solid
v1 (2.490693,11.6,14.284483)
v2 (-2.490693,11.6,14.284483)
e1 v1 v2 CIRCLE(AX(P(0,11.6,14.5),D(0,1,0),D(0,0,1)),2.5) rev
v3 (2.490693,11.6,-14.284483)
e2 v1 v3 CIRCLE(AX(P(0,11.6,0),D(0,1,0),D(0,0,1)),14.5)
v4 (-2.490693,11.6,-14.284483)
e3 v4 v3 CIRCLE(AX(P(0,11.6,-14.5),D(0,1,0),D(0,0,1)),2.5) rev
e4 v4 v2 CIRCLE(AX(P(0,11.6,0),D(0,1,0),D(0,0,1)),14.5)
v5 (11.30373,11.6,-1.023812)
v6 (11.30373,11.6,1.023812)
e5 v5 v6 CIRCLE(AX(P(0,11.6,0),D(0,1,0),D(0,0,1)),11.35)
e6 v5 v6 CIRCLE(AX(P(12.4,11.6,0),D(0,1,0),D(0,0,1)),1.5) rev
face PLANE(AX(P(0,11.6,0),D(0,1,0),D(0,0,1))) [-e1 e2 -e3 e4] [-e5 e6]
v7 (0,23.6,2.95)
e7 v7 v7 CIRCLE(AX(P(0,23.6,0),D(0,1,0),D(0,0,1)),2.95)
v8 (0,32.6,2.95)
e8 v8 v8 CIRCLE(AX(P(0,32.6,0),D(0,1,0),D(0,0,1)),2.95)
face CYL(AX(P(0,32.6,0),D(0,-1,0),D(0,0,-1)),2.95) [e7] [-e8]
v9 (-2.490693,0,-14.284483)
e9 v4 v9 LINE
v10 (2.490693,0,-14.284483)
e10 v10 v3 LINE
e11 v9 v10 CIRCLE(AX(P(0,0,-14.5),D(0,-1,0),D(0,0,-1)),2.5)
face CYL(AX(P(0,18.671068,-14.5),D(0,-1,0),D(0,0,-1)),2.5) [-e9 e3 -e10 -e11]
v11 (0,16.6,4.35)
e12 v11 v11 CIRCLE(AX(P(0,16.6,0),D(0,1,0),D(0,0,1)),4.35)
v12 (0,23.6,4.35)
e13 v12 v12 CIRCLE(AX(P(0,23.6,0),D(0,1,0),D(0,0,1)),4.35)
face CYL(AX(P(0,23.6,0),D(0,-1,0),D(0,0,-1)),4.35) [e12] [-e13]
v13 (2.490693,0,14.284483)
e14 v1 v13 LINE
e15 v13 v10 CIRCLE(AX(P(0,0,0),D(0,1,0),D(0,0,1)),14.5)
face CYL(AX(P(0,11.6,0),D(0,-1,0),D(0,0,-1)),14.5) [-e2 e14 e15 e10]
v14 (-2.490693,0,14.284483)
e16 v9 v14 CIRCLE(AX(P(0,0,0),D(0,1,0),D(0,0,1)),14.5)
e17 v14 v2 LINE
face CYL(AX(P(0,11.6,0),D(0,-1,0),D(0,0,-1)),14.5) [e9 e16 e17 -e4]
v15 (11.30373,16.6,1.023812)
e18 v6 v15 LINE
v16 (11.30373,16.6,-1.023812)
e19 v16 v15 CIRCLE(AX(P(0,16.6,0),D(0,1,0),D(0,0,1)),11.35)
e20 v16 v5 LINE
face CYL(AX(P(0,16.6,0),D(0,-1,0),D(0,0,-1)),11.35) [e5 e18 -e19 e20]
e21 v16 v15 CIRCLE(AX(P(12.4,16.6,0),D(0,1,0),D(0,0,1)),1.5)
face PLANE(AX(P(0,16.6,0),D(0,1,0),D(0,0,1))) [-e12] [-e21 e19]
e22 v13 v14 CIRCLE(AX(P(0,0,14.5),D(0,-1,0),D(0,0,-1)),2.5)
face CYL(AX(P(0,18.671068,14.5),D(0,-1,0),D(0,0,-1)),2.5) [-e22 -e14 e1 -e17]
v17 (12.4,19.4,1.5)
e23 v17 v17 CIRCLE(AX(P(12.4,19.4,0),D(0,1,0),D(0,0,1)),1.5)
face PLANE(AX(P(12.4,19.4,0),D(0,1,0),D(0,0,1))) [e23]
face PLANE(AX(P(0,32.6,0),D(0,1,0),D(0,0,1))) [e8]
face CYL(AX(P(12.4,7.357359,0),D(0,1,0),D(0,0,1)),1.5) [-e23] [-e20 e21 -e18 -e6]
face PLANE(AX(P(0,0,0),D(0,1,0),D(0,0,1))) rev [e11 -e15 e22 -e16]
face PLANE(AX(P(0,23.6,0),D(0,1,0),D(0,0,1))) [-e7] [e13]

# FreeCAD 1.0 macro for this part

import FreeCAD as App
import Part
import Sketcher

doc = App.newDocument("Part")
params = doc.addObject("Spreadsheet::Sheet", "Params")
for row, (alias, value) in enumerate([
    ("sketch1_diameter", "29 mm"),
    ("pad1_length", "11.6 mm"),
    ("sketch2_diameter", "22.7 mm"),
    ("pad2_length", "5 mm"),
    ("sketch3_diameter", "8.7 mm"),
    ("pad3_length", "7 mm"),
    ("sketch4_diameter", "5.9 mm"),
    ("pad4_length", "9 mm"),
    ("sketch5_diameter", "5 mm"),
    ("pad5_length", "11.6 mm"),
    ("sketch6_diameter", "3 mm"),
    ("pad6_length", "2.8 mm"),
    ("pad6_length2", "16.6 mm"),
], start=1):
    params.set(f"A{row}", alias)
    params.set(f"B{row}", "=" + value)
    params.setAlias(f"B{row}", alias)

body = doc.addObject("PartDesign::Body", "Body")

# Sketch on XZ plane
sketch1 = body.newObject("Sketcher::SketchObject", "Sketch")
sketch1.AttachmentSupport = (doc.getObject("XZ_Plane"), [""])
sketch1.MapMode = "FlatFace"
sketch1.addGeometry(Part.Circle(App.Vector(0, 0, 0), App.Vector(0, 0, 1), 14), False)
sketch1.addConstraint(Sketcher.Constraint("Coincident", 0, 3, -1, 1))
sketch1.addConstraint(Sketcher.Constraint("Diameter", 0, 29.0))
sketch1.setExpression("Constraints[1]", "Params.sketch1_diameter")
pad1 = body.newObject("PartDesign::Pad", "Pad")
pad1.Profile = sketch1
pad1.setExpression("Length", "Params.pad1_length")
pad1.Reversed = True

# Sketch on XZ plane
sketch2 = body.newObject("Sketcher::SketchObject", "Sketch001")
sketch2.AttachmentSupport = (doc.getObject("XZ_Plane"), [""])
sketch2.MapMode = "FlatFace"
sketch2.AttachmentOffset = App.Placement(App.Vector(0, 0, -11.6), App.Rotation())
sketch2.addGeometry(Part.Circle(App.Vector(0, 0, 0), App.Vector(0, 0, 1), 11), False)
sketch2.addConstraint(Sketcher.Constraint("Coincident", 0, 3, -1, 1))
sketch2.addConstraint(Sketcher.Constraint("Diameter", 0, 22.7))
sketch2.setExpression("Constraints[1]", "Params.sketch2_diameter")
pad2 = body.newObject("PartDesign::Pad", "Pad001")
pad2.Profile = sketch2
pad2.setExpression("Length", "Params.pad2_length")
pad2.Reversed = True

# Sketch on XZ plane
sketch3 = body.newObject("Sketcher::SketchObject", "Sketch002")
sketch3.AttachmentSupport = (doc.getObject("XZ_Plane"), [""])
sketch3.MapMode = "FlatFace"
sketch3.AttachmentOffset = App.Placement(App.Vector(0, 0, -16.6), App.Rotation())
sketch3.addGeometry(Part.Circle(App.Vector(0, 0, 0), App.Vector(0, 0, 1), 4.3), False)
sketch3.addConstraint(Sketcher.Constraint("Coincident", 0, 3, -1, 1))
sketch3.addConstraint(Sketcher.Constraint("Diameter", 0, 8.7))
sketch3.setExpression("Constraints[1]", "Params.sketch3_diameter")
pad3 = body.newObject("PartDesign::Pad", "Pad002")
pad3.Profile = sketch3
pad3.setExpression("Length", "Params.pad3_length")
pad3.Reversed = True

# Sketch on XZ plane
sketch4 = body.newObject("Sketcher::SketchObject", "Sketch003")
sketch4.AttachmentSupport = (doc.getObject("XZ_Plane"), [""])
sketch4.MapMode = "FlatFace"
sketch4.AttachmentOffset = App.Placement(App.Vector(0, 0, -23.6), App.Rotation())
sketch4.addGeometry(Part.Circle(App.Vector(0, 0, 0), App.Vector(0, 0, 1), 3), False)
sketch4.addConstraint(Sketcher.Constraint("Coincident", 0, 3, -1, 1))
sketch4.addConstraint(Sketcher.Constraint("Diameter", 0, 5.9))
sketch4.setExpression("Constraints[1]", "Params.sketch4_diameter")
pad4 = body.newObject("PartDesign::Pad", "Pad003")
pad4.Profile = sketch4
pad4.setExpression("Length", "Params.pad4_length")
pad4.Reversed = True

# Sketch on XZ plane
sketch5 = body.newObject("Sketcher::SketchObject", "Sketch004")
sketch5.AttachmentSupport = (doc.getObject("XZ_Plane"), [""])
sketch5.MapMode = "FlatFace"
sketch5.addGeometry(Part.Circle(App.Vector(0, 14.5, 0), App.Vector(0, 0, 1), 2.5), False)
sketch5.addGeometry(Part.Circle(App.Vector(0, -14.5, 0), App.Vector(0, 0, 1), 2.5), False)
sketch5.addConstraint(Sketcher.Constraint("Equal", 0, 1))
sketch5.addConstraint(Sketcher.Constraint("Symmetric", 0, 3, 1, 3, -1, 1))
sketch5.addConstraint(Sketcher.Constraint("PointOnObject", 0, 3, -2))
sketch5.addConstraint(Sketcher.Constraint("Diameter", 0, 5.0))
sketch5.addConstraint(Sketcher.Constraint("DistanceY", 1, 3, 0, 3, 29.0))
sketch5.setExpression("Constraints[3]", "Params.sketch5_diameter")
pad5 = body.newObject("PartDesign::Pad", "Pad004")
pad5.Profile = sketch5
pad5.setExpression("Length", "Params.pad5_length")
pad5.Reversed = True

# Sketch on XZ plane
sketch6 = body.newObject("Sketcher::SketchObject", "Sketch005")
sketch6.AttachmentSupport = (doc.getObject("XZ_Plane"), [""])
sketch6.MapMode = "FlatFace"
sketch6.AttachmentOffset = App.Placement(App.Vector(0, 0, -16.6), App.Rotation())
sketch6.addGeometry(Part.Circle(App.Vector(12.4, 0, 0), App.Vector(0, 0, 1), 1.5), False)
sketch6.addConstraint(Sketcher.Constraint("PointOnObject", 0, 3, -1))
sketch6.addConstraint(Sketcher.Constraint("Diameter", 0, 3.0))
sketch6.addConstraint(Sketcher.Constraint("DistanceX", -1, 1, 0, 3, 12.4))
sketch6.setExpression("Constraints[1]", "Params.sketch6_diameter")
pad6 = body.newObject("PartDesign::Pad", "Pad005")
pad6.Profile = sketch6
pad6.Type = "TwoLengths"
pad6.setExpression("Length", "Params.pad6_length")
pad6.setExpression("Length2", "Params.pad6_length2")
pad6.Reversed = True

doc.recompute()
